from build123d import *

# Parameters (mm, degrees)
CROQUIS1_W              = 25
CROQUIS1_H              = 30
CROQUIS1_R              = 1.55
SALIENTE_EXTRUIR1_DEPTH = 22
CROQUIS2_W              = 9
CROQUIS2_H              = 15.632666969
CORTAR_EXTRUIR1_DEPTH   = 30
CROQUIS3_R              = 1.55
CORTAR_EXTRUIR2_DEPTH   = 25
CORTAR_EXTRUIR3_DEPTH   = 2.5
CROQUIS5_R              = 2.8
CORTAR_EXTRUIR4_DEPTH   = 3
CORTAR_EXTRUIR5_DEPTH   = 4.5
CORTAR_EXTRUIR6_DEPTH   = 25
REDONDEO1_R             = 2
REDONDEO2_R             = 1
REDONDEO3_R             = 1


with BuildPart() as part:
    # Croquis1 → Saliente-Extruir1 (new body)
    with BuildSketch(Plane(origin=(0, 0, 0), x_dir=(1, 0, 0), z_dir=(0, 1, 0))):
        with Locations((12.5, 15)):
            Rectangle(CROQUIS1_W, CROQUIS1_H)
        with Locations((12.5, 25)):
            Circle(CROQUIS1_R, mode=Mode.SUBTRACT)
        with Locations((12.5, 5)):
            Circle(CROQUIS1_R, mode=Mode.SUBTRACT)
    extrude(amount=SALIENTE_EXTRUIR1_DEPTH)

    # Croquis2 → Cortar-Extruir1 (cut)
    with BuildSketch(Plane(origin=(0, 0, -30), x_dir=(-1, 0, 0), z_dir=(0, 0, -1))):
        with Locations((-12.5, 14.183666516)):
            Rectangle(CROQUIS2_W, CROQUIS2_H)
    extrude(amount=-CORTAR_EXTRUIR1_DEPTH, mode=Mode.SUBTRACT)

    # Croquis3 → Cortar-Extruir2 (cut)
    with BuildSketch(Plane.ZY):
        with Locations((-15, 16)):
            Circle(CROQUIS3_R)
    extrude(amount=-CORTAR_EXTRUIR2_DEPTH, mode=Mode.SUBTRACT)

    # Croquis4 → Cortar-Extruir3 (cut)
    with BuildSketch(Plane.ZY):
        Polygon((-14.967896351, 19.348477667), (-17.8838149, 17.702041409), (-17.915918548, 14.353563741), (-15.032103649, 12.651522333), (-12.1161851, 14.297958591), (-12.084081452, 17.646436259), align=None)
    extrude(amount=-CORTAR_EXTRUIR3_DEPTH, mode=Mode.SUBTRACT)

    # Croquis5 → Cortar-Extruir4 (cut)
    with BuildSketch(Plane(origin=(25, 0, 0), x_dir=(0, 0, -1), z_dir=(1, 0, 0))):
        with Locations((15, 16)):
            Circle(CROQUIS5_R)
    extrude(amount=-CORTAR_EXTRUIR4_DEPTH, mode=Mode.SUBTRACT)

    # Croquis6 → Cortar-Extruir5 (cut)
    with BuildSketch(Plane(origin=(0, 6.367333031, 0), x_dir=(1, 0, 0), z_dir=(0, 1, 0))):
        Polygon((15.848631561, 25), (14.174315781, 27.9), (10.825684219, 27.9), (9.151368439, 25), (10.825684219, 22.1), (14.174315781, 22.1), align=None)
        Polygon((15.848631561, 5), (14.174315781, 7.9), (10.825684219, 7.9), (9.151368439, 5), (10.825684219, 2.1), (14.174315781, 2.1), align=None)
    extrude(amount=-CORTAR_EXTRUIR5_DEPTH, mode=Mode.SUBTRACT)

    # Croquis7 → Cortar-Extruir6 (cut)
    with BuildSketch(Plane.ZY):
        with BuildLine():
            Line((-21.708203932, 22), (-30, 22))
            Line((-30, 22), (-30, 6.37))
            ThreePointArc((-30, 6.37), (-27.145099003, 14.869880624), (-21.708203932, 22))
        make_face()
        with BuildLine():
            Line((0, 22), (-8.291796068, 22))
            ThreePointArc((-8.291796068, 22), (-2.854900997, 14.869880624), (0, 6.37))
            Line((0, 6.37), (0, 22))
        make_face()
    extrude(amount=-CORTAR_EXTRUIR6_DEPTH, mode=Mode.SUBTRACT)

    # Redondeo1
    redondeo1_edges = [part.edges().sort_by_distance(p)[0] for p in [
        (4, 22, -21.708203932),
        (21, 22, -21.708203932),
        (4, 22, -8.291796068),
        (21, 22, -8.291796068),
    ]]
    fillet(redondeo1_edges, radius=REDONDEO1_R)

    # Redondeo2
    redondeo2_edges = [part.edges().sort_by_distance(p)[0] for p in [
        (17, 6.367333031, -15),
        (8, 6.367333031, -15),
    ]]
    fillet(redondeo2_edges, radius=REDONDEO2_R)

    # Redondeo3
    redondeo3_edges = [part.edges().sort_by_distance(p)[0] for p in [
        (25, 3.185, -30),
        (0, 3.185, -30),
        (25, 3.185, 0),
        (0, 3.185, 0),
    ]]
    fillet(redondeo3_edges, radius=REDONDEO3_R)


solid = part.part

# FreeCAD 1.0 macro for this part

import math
import FreeCAD as App
import Part
import Sketcher
Q = App.Units.Quantity


def edges_at(feature, points):
    """Names of the edges that pass closest to the given points."""
    edges = feature.Shape.Edges
    near = lambda p: min(range(len(edges)), key=lambda i: edges[i].distToShape(Part.Vertex(*p))[0])
    return sorted({f"Edge{near(p) + 1}" for p in points})


def add_polygon(sketch, points):
    """Adds a closed chain of lines whose ends are joined by coincident constraints."""
    first, n = sketch.GeometryCount, len(points)
    for a, b in zip(points, points[1:] + points[:1]):
        sketch.addGeometry(Part.LineSegment(App.Vector(*a, 0), App.Vector(*b, 0)), False)
    for i in range(n):
        sketch.addConstraint(Sketcher.Constraint("Coincident", first + i, 2, first + (i + 1) % n, 1))

doc = App.newDocument("Part")
body = doc.addObject("PartDesign::Body", "Body")

# Sketch on XZ plane
sketch1 = doc.addObject("Sketcher::SketchObject", "Sketch")
body.addObject(sketch1)
sketch1.AttachmentSupport = (doc.XZ_Plane, [""])
sketch1.MapMode = "FlatFace"
add_polygon(sketch1, [(0, -30), (0, 0), (25, 0), (25, -30)])  # lines 0-3
sketch1.addGeometry(Part.Circle(App.Vector(12.5, -5, 0), App.Vector(0, 0, 1), 1.6), False)  # 4
sketch1.addGeometry(Part.Circle(App.Vector(12.5, -25, 0), App.Vector(0, 0, 1), 1.6), False)  # 5
sketch1.addConstraint([
    Sketcher.Constraint("Vertical", 0),
    Sketcher.Constraint("Horizontal", 1),
    Sketcher.Constraint("Vertical", 2),
    Sketcher.Constraint("Horizontal", 3),
    Sketcher.Constraint("Coincident", 0, 2, -1, 1),
    Sketcher.Constraint("Equal", 4, 5),
    Sketcher.Constraint("Vertical", 4, 3, 5, 3),
    Sketcher.Constraint("Diameter", 4, 3.1),
    Sketcher.Constraint("DistanceX", 1, 1, 1, 2, 25.0),
    Sketcher.Constraint("DistanceY", 0, 1, 0, 2, 30.0),
    Sketcher.Constraint("DistanceY", 4, 3, -1, 1, 5.0),
    Sketcher.Constraint("DistanceY", 5, 3, -1, 1, 25.0),
    Sketcher.Constraint("DistanceX", -1, 1, 4, 3, 12.5),
])
pad1 = doc.addObject("PartDesign::Pad", "Pad")
body.addObject(pad1)
pad1.Profile = sketch1
pad1.Length = 22
pad1.Reversed = True

# Sketch on XY plane
sketch2 = doc.addObject("Sketcher::SketchObject", "Sketch001")
body.addObject(sketch2)
sketch2.AttachmentSupport = (doc.XY_Plane, [""])
sketch2.MapMode = "FlatFace"
sketch2.AttachmentOffset = App.Placement(App.Vector(0, 0, -30), App.Rotation())
add_polygon(sketch2, [(17, 22), (17, 6), (8, 6), (8, 22)])  # lines 0-3
sketch2.addConstraint([
    Sketcher.Constraint("Vertical", 0),
    Sketcher.Constraint("Horizontal", 1),
    Sketcher.Constraint("Vertical", 2),
    Sketcher.Constraint("Horizontal", 3),
    Sketcher.Constraint("DistanceX", 1, 2, 1, 1, 9.0),
    Sketcher.Constraint("DistanceX", -1, 1, 0, 2, 17.0),
    Sketcher.Constraint("DistanceY", -1, 1, 2, 2, 22.0),
    Sketcher.Constraint("DistanceY", 0, 2, 0, 1, 15.632667),
])
pocket1 = doc.addObject("PartDesign::Pocket", "Pocket")
body.addObject(pocket1)
pocket1.Profile = sketch2
pocket1.Length = 30
pocket1.Reversed = True

# Sketch on YZ plane
sketch3 = doc.addObject("Sketcher::SketchObject", "Sketch002")
body.addObject(sketch3)
sketch3.AttachmentSupport = (doc.YZ_Plane, [""])
sketch3.MapMode = "FlatFace"
sketch3.addGeometry(Part.Circle(App.Vector(16, -15, 0), App.Vector(0, 0, 1), 1.6), False)
sketch3.addConstraint([
    Sketcher.Constraint("Diameter", 0, 3.1),
    Sketcher.Constraint("DistanceX", -1, 1, 0, 3, 16.0),
    Sketcher.Constraint("DistanceY", 0, 3, -1, 1, 15.0),
])
pocket2 = doc.addObject("PartDesign::Pocket", "Pocket001")
body.addObject(pocket2)
pocket2.Profile = sketch3
pocket2.Length = 25
pocket2.Reversed = True

# Sketch on YZ plane
sketch4 = doc.addObject("Sketcher::SketchObject", "Sketch003")
body.addObject(sketch4)
sketch4.AttachmentSupport = (doc.YZ_Plane, [""])
sketch4.MapMode = "FlatFace"
add_polygon(sketch4, [(19.3, -15), (17.7, -17.9), (14.4, -17.9), (12.7, -15), (14.3, -12.1), (17.6, -12.1)])  # lines 0-5
sketch4.addConstraint([
    Sketcher.Constraint("Parallel", 0, 3),
    Sketcher.Constraint("Parallel", 1, 4),
    Sketcher.Constraint("Parallel", 2, 5),
    Sketcher.Constraint("Equal", 0, 1),
    Sketcher.Constraint("Equal", 1, 2),
    Sketcher.Constraint("Equal", 2, 3),
    Sketcher.Constraint("Distance", 0, 3.348632),
    Sketcher.Constraint("DistanceX", -1, 1, 0, 2, 17.702041),
    Sketcher.Constraint("DistanceY", 1, 2, -1, 1, 17.915919),
    Sketcher.Constraint("DistanceX", -1, 1, 3, 2, 14.297959),
    Sketcher.Constraint("DistanceY", 4, 2, -1, 1, 12.084081),
    Sketcher.Constraint("DistanceX", 2, 2, 1, 2, 1.702041),
])
pocket3 = doc.addObject("PartDesign::Pocket", "Pocket002")
body.addObject(pocket3)
pocket3.Profile = sketch4
pocket3.Length = 2.5
pocket3.Reversed = True

# Sketch on YZ plane
sketch5 = doc.addObject("Sketcher::SketchObject", "Sketch004")
body.addObject(sketch5)
sketch5.AttachmentSupport = (doc.YZ_Plane, [""])
sketch5.MapMode = "FlatFace"
sketch5.AttachmentOffset = App.Placement(App.Vector(0, 0, 25), App.Rotation())
sketch5.addGeometry(Part.Circle(App.Vector(16, -15, 0), App.Vector(0, 0, 1), 2.8), False)
sketch5.addConstraint([
    Sketcher.Constraint("Diameter", 0, 5.6),
    Sketcher.Constraint("DistanceX", -1, 1, 0, 3, 16.0),
    Sketcher.Constraint("DistanceY", 0, 3, -1, 1, 15.0),
])
pocket4 = doc.addObject("PartDesign::Pocket", "Pocket003")
body.addObject(pocket4)
pocket4.Profile = sketch5
pocket4.Length = 3

# Sketch on XZ plane
sketch6 = doc.addObject("Sketcher::SketchObject", "Sketch005")
body.addObject(sketch6)
sketch6.AttachmentSupport = (doc.XZ_Plane, [""])
sketch6.MapMode = "FlatFace"
sketch6.AttachmentOffset = App.Placement(App.Vector(0, 0, -6.367333), App.Rotation())
add_polygon(sketch6, [(15.8, -25), (14.2, -27.9), (10.8, -27.9), (9.2, -25), (10.8, -22.1), (14.2, -22.1)])  # lines 0-5
add_polygon(sketch6, [(15.8, -5), (14.2, -7.9), (10.8, -7.9), (9.2, -5), (10.8, -2.1), (14.2, -2.1)])  # lines 6-11
sketch6.addConstraint([
    Sketcher.Constraint("Horizontal", 1),
    Sketcher.Constraint("Horizontal", 4),
    Sketcher.Constraint("Horizontal", 7),
    Sketcher.Constraint("Horizontal", 10),
    Sketcher.Constraint("Parallel", 0, 3),
    Sketcher.Constraint("Parallel", 2, 5),
    Sketcher.Constraint("Parallel", 3, 6),
    Sketcher.Constraint("Parallel", 5, 8),
    Sketcher.Constraint("Parallel", 6, 9),
    Sketcher.Constraint("Parallel", 8, 11),
    Sketcher.Constraint("Horizontal", 2, 2, 5, 2),
    Sketcher.Constraint("Horizontal", 8, 2, 11, 2),
    Sketcher.Constraint("Vertical", 1, 2, 3, 2),
    Sketcher.Constraint("Vertical", 0, 2, 4, 2),
    Sketcher.Constraint("Vertical", 4, 2, 6, 2),
    Sketcher.Constraint("Vertical", 3, 2, 7, 2),
    Sketcher.Constraint("Vertical", 2, 2, 8, 2),
    Sketcher.Constraint("Vertical", 7, 2, 9, 2),
    Sketcher.Constraint("Angle", 0, Q("-120 deg")),
    Sketcher.Constraint("DistanceY", 2, 2, -1, 1, 25.0),
    Sketcher.Constraint("DistanceY", 8, 2, -1, 1, 5.0),
    Sketcher.Constraint("DistanceY", 0, 2, -1, 1, 27.9),
    Sketcher.Constraint("DistanceX", 1, 2, 1, 1, 3.348632),
    Sketcher.Constraint("DistanceX", -1, 1, 2, 2, 9.151368),
])
pocket5 = doc.addObject("PartDesign::Pocket", "Pocket004")
body.addObject(pocket5)
pocket5.Profile = sketch6
pocket5.Length = 4.5
pocket5.Reversed = True

# Sketch on YZ plane
sketch7 = doc.addObject("Sketcher::SketchObject", "Sketch006")
body.addObject(sketch7)
sketch7.AttachmentSupport = (doc.YZ_Plane, [""])
sketch7.MapMode = "FlatFace"
sketch7.addGeometry([
    Part.LineSegment(App.Vector(22, -22, 0), App.Vector(22, -30, 0)),  # 0
    Part.LineSegment(App.Vector(22, -30, 0), App.Vector(6, -30, 0)),  # 1
    Part.ArcOfCircle(Part.Circle(App.Vector(2, -3, 0), App.Vector(0, 0, 1), 28), math.radians(-81), math.radians(-43)),  # 2
    Part.LineSegment(App.Vector(22, 0, 0), App.Vector(22, -8, 0)),  # 3
    Part.ArcOfCircle(Part.Circle(App.Vector(2, -27, 0), App.Vector(0, 0, 1), 28), math.radians(43), math.radians(81)),  # 4
    Part.LineSegment(App.Vector(6, 0, 0), App.Vector(22, 0, 0)),  # 5
], False)
sketch7.addConstraint([
    Sketcher.Constraint("Coincident", 0, 2, 1, 1),
    Sketcher.Constraint("Coincident", 1, 2, 2, 1),
    Sketcher.Constraint("Coincident", 2, 2, 0, 1),
    Sketcher.Constraint("Coincident", 3, 2, 4, 1),
    Sketcher.Constraint("Coincident", 4, 2, 5, 1),
    Sketcher.Constraint("Coincident", 5, 2, 3, 1),
    Sketcher.Constraint("Vertical", 0),
    Sketcher.Constraint("Horizontal", 1),
    Sketcher.Constraint("Vertical", 3),
    Sketcher.Constraint("Horizontal", 5),
    Sketcher.Constraint("Equal", 2, 4),
    Sketcher.Constraint("PointOnObject", 4, 2, -1),
    Sketcher.Constraint("Vertical", 2, 3, 4, 3),
    Sketcher.Constraint("Vertical", 2, 2, 3, 2),
    Sketcher.Constraint("Vertical", 1, 2, 4, 2),
    Sketcher.Constraint("DistanceX", -1, 1, 0, 2, 22.0),
    Sketcher.Constraint("DistanceY", 0, 2, -1, 1, 30.0),
    Sketcher.Constraint("DistanceX", 1, 2, 1, 1, 15.63),
    Sketcher.Constraint("Radius", 2, 27.507043),
    Sketcher.Constraint("DistanceY", 2, 2, 2, 3, 18.862502),
])
pocket6 = doc.addObject("PartDesign::Pocket", "Pocket005")
body.addObject(pocket6)
pocket6.Profile = sketch7
pocket6.Length = 25
pocket6.Reversed = True
doc.recompute()

fillet = doc.addObject("PartDesign::Fillet", "Fillet")
body.addObject(fillet)
fillet.Base = (pocket6, edges_at(pocket6, [
    (4, 22, -21.708),
    (21, 22, -21.708),
    (4, 22, -8.292),
    (21, 22, -8.292),
]))
fillet.Radius = 2
doc.recompute()

fillet2 = doc.addObject("PartDesign::Fillet", "Fillet001")
body.addObject(fillet2)
fillet2.Base = (fillet, edges_at(fillet, [(17, 6.367, -15), (8, 6.367, -15)]))
fillet2.Radius = 1
doc.recompute()

fillet3 = doc.addObject("PartDesign::Fillet", "Fillet002")
body.addObject(fillet3)
fillet3.Base = (fillet2, edges_at(fillet2, [
    (25, 3.185, -30),
    (0, 3.185, -30),
    (25, 3.185, 0),
    (0, 3.185, 0),
]))
fillet3.Radius = 1

doc.recompute()
